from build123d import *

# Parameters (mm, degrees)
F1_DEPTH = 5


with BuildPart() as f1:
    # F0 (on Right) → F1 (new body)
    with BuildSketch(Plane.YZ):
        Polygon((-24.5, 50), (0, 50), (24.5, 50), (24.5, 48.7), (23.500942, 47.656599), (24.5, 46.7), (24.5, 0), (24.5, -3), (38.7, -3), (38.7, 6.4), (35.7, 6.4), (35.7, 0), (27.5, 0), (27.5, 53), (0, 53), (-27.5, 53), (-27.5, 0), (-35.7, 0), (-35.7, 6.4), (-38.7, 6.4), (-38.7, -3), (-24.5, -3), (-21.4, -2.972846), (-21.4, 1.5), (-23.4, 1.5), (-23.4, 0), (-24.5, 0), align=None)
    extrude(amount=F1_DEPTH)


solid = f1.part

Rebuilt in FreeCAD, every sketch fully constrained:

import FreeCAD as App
import Part
import Sketcher
Q = App.Units.Quantity


def add_polygon(sketch, points):
    """Adds a closed chain of lines whose ends are joined by coincident constraints."""
    first, n = sketch.GeometryCount, len(points)
    for a, b in zip(points, points[1:] + points[:1]):
        sketch.addGeometry(Part.LineSegment(App.Vector(*a, 0), App.Vector(*b, 0)), False)
    for i in range(n):
        sketch.addConstraint(Sketcher.Constraint("Coincident", first + i, 2, first + (i + 1) % n, 1))

doc = App.newDocument("Part")
params = doc.addObject("Spreadsheet::Sheet", "Params")
for row, (alias, value) in enumerate([
    ("sketch1_width", "49 mm"),
    ("sketch1_width2", "3 mm"),
    ("sketch1_width3", "55 mm"),
    ("sketch1_width4", "2 mm"),
    ("sketch1_height", "53 mm"),
    ("pad1_length", "5 mm"),
], start=1):
    params.set(f"A{row}", alias)
    params.set(f"B{row}", "=" + value)
    params.setAlias(f"B{row}", alias)

body = doc.addObject("PartDesign::Body", "Body")

# Sketch on YZ plane
sketch1 = body.newObject("Sketcher::SketchObject", "Sketch")
sketch1.AttachmentSupport = (doc.getObject("YZ_Plane"), [""])
sketch1.MapMode = "FlatFace"
add_polygon(sketch1, [(-24.5, 50), (24.5, 50), (24.5, 48.7), (23.500942, 47.656599), (24.5, 46.7), (24.5, -3), (38.7, -3), (38.7, 6.4), (35.7, 6.4), (35.7, 0), (27.5, 0), (27.5, 53), (-27.5, 53), (-27.5, 0), (-35.7, 0), (-35.7, 6.4), (-38.7, 6.4), (-38.7, -3), (-24.5, -3), (-21.4, -2.972846), (-21.4, 1.5), (-23.4, 1.5), (-23.4, 0), (-24.5, 0)])  # lines 0-23
sketch1.addConstraint([
    Sketcher.Constraint("Horizontal", 0),
    Sketcher.Constraint("Vertical", 1),
    Sketcher.Constraint("Vertical", 4),
    Sketcher.Constraint("Horizontal", 5),
    Sketcher.Constraint("Vertical", 6),
    Sketcher.Constraint("Horizontal", 7),
    Sketcher.Constraint("Vertical", 8),
    Sketcher.Constraint("Horizontal", 9),
    Sketcher.Constraint("Vertical", 10),
    Sketcher.Constraint("Horizontal", 11),
    Sketcher.Constraint("Vertical", 12),
    Sketcher.Constraint("Horizontal", 13),
    Sketcher.Constraint("Vertical", 14),
    Sketcher.Constraint("Horizontal", 15),
    Sketcher.Constraint("Vertical", 16),
    Sketcher.Constraint("Horizontal", 17),
    Sketcher.Constraint("Vertical", 19),
    Sketcher.Constraint("Horizontal", 20),
    Sketcher.Constraint("Vertical", 21),
    Sketcher.Constraint("Horizontal", 22),
    Sketcher.Constraint("Vertical", 23),
    Sketcher.Constraint("Symmetric", 9, 2, 12, 2, -1, 1),
    Sketcher.Constraint("Symmetric", 8, 2, 13, 2, -2),
    Sketcher.Constraint("Symmetric", 6, 2, 15, 2, -2),
    Sketcher.Constraint("Symmetric", 4, 2, 17, 2, -2),
    Sketcher.Constraint("PointOnObject", 21, 2, -1),
    Sketcher.Constraint("Perpendicular", 2, 3),
    Sketcher.Constraint("Vertical", 1, 2, 3, 2),
    Sketcher.Constraint("Vertical", 17, 2, 22, 2),
    Sketcher.Constraint("DistanceX", 0, 1, 0, 2, Q("49 mm")),
    Sketcher.Constraint("DistanceX", 7, 2, 7, 1, Q("3 mm")),
    Sketcher.Constraint("DistanceX", 11, 2, 11, 1, Q("55 mm")),
    Sketcher.Constraint("DistanceX", 20, 2, 20, 1, Q("2 mm")),
    Sketcher.Constraint("DistanceY", 10, 1, 10, 2, Q("53 mm")),
    Sketcher.Constraint("DistanceY", 23, 1, 23, 2, Q("50 mm")),
    Sketcher.Constraint("DistanceX", 5, 1, 5, 2, Q("14.2 mm")),
    Sketcher.Constraint("DistanceX", 22, 2, 22, 1, Q("1.1 mm")),
    Sketcher.Constraint("DistanceY", 1, 2, 1, 1, Q("1.3 mm")),
    Sketcher.Constraint("DistanceY", 4, 2, 4, 1, Q("49.7 mm")),
    Sketcher.Constraint("DistanceY", 6, 1, 6, 2, Q("9.4 mm")),
    Sketcher.Constraint("DistanceY", 8, 2, 8, 1, Q("6.4 mm")),
    Sketcher.Constraint("DistanceY", 21, 2, 21, 1, Q("1.5 mm")),
    Sketcher.Constraint("DistanceY", -1, 1, 2, 2, Q("47.656599 mm")),
    Sketcher.Constraint("Distance", 18, Q("3.100119 mm")),
])
sketch1.setExpression("Constraints[53]", "Params.sketch1_width")
sketch1.setExpression("Constraints[54]", "Params.sketch1_width2")
sketch1.setExpression("Constraints[55]", "Params.sketch1_width3")
sketch1.setExpression("Constraints[56]", "Params.sketch1_width4")
sketch1.setExpression("Constraints[57]", "Params.sketch1_height")
pad1 = body.newObject("PartDesign::Pad", "Pad")
pad1.Profile = sketch1
pad1.setExpression("Length", "Params.pad1_length")

doc.recompute()
